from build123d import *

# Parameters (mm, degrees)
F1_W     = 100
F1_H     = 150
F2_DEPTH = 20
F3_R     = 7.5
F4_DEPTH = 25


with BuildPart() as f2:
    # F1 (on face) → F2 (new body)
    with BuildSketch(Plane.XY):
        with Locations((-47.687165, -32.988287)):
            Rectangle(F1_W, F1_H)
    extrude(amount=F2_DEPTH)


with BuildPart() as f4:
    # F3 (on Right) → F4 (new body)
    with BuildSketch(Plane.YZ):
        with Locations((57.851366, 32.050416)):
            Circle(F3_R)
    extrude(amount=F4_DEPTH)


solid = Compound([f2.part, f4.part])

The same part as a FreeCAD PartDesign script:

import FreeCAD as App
import Part
import Sketcher
Q = App.Units.Quantity


def add_polygon(sketch, points):
    """Adds a closed chain of lines whose ends are joined by coincident constraints."""
    first, n = sketch.GeometryCount, len(points)
    for a, b in zip(points, points[1:] + points[:1]):
        sketch.addGeometry(Part.LineSegment(App.Vector(*a, 0), App.Vector(*b, 0)), False)
    for i in range(n):
        sketch.addConstraint(Sketcher.Constraint("Coincident", first + i, 2, first + (i + 1) % n, 1))

doc = App.newDocument("Part")
params = doc.addObject("Spreadsheet::Sheet", "Params")
for row, (alias, value) in enumerate([
    ("sketch1_width", "100 mm"),
    ("sketch1_height", "150 mm"),
    ("pad1_length", "20 mm"),
    ("sketch2_diameter", "15 mm"),
    ("pad2_length", "25 mm"),
], start=1):
    params.set(f"A{row}", alias)
    params.set(f"B{row}", "=" + value)
    params.setAlias(f"B{row}", alias)

body = doc.addObject("PartDesign::Body", "Body")

# Sketch on XY plane
sketch1 = doc.addObject("Sketcher::SketchObject", "Sketch")
body.addObject(sketch1)
sketch1.AttachmentSupport = (doc.XY_Plane, [""])
sketch1.MapMode = "FlatFace"
add_polygon(sketch1, [(-98, 42), (-98, -108), (2, -108), (2, 42)])  # lines 0-3
sketch1.addConstraint([
    Sketcher.Constraint("Vertical", 0),
    Sketcher.Constraint("Horizontal", 1),
    Sketcher.Constraint("Vertical", 2),
    Sketcher.Constraint("Horizontal", 3),
    Sketcher.Constraint("DistanceX", 1, 1, 1, 2, Q("100 mm")),
    Sketcher.Constraint("DistanceY", 0, 2, 0, 1, Q("150 mm")),
    Sketcher.Constraint("DistanceX", 0, 2, -1, 1, Q("97.687165 mm")),
    Sketcher.Constraint("DistanceY", 0, 2, -1, 1, Q("107.988287 mm")),
])
sketch1.setExpression("Constraints[8]", "Params.sketch1_width")
sketch1.setExpression("Constraints[9]", "Params.sketch1_height")
pad1 = doc.addObject("PartDesign::Pad", "Pad")
body.addObject(pad1)
pad1.Profile = sketch1
pad1.setExpression("Length", "Params.pad1_length")
body2 = doc.addObject("PartDesign::Body", "Body001")

# Sketch on YZ plane
sketch2 = doc.addObject("Sketcher::SketchObject", "Sketch001")
body2.addObject(sketch2)
sketch2.AttachmentSupport = (doc.getObject("YZ_Plane001"), [""])
sketch2.MapMode = "FlatFace"
sketch2.addGeometry(Part.Circle(App.Vector(58, 32, 0), App.Vector(0, 0, 1), 8), False)
sketch2.addConstraint([
    Sketcher.Constraint("Diameter", 0, Q("15 mm")),
    Sketcher.Constraint("DistanceX", -1, 1, 0, 3, Q("57.851366 mm")),
    Sketcher.Constraint("DistanceY", -1, 1, 0, 3, Q("32.050416 mm")),
])
sketch2.setExpression("Constraints[0]", "Params.sketch2_diameter")
pad2 = doc.addObject("PartDesign::Pad", "Pad001")
body2.addObject(pad2)
pad2.Profile = sketch2
pad2.setExpression("Length", "Params.pad2_length")

doc.recompute()
